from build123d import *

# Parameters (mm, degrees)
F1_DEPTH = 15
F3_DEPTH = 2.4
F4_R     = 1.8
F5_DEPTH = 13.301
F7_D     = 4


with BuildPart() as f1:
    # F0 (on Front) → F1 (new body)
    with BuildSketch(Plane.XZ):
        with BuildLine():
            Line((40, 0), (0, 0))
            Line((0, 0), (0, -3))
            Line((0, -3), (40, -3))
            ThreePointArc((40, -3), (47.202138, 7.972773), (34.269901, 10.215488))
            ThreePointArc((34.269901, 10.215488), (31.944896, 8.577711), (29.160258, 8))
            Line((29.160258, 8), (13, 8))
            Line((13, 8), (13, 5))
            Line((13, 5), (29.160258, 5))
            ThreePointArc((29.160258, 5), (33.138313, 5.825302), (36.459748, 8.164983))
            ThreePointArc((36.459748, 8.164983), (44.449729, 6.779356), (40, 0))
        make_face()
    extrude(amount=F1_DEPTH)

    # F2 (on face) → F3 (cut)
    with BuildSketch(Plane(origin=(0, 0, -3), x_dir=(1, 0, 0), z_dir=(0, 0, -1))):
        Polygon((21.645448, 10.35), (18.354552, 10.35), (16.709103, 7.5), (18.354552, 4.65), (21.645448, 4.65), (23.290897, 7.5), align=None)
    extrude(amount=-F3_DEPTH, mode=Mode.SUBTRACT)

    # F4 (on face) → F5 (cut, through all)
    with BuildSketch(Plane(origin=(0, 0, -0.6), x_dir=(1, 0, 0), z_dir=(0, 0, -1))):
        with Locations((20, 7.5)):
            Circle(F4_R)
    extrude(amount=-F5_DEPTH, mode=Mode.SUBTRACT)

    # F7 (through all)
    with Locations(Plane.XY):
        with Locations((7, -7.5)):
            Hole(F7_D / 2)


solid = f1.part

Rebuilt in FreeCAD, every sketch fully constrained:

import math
import FreeCAD as App
import Part
import Sketcher
Q = App.Units.Quantity


def add_polygon(sketch, points):
    """Adds a closed chain of lines whose ends are joined by coincident constraints."""
    first, n = sketch.GeometryCount, len(points)
    for a, b in zip(points, points[1:] + points[:1]):
        sketch.addGeometry(Part.LineSegment(App.Vector(*a, 0), App.Vector(*b, 0)), False)
    for i in range(n):
        sketch.addConstraint(Sketcher.Constraint("Coincident", first + i, 2, first + (i + 1) % n, 1))

doc = App.newDocument("Part")
body = doc.addObject("PartDesign::Body", "Body")

# Sketch on XZ plane
sketch1 = body.newObject("Sketcher::SketchObject", "Sketch")
sketch1.AttachmentSupport = (doc.getObject("XZ_Plane"), [""])
sketch1.MapMode = "FlatFace"
sketch1.addGeometry([
    Part.LineSegment(App.Vector(40, 0, 0), App.Vector(0, 0, 0)),  # 0
    Part.LineSegment(App.Vector(0, 0, 0), App.Vector(0, -3, 0)),  # 1
    Part.LineSegment(App.Vector(0, -3, 0), App.Vector(40, -3, 0)),  # 2
    Part.ArcOfCircle(Part.Circle(App.Vector(40, 4.85, 0), App.Vector(0, 0, 1), 7.85), math.radians(-90.000002), math.radians(136.882115)),  # 3
    Part.ArcOfCircle(Part.Circle(App.Vector(29.160259, 14.999999, 0), App.Vector(0, 0, 1), 6.999999), math.radians(-90.000009), math.radians(-43.117886)),  # 4
    Part.LineSegment(App.Vector(29.160258, 8, 0), App.Vector(13, 8, 0)),  # 5
    Part.LineSegment(App.Vector(13, 8, 0), App.Vector(13, 5, 0)),  # 6
    Part.LineSegment(App.Vector(13, 5, 0), App.Vector(29.160258, 5, 0)),  # 7
    Part.ArcOfCircle(Part.Circle(App.Vector(29.160258, 15.000001, 0), App.Vector(0, 0, 1), 10.000001), math.radians(-90.000003), math.radians(-43.11789)),  # 8
    Part.ArcOfCircle(Part.Circle(App.Vector(40, 4.85, 0), App.Vector(0, 0, 1), 4.85), math.radians(-90.000005), math.radians(136.882115)),  # 9
], False)
sketch1.addConstraint([
    Sketcher.Constraint("Coincident", 0, 2, 1, 1),
    Sketcher.Constraint("Coincident", 1, 2, 2, 1),
    Sketcher.Constraint("Tangent", 2, 2, 3, 1),
    Sketcher.Constraint("Tangent", 3, 2, 4, 2),
    Sketcher.Constraint("Tangent", 4, 1, 5, 1),
    Sketcher.Constraint("Coincident", 5, 2, 6, 1),
    Sketcher.Constraint("Coincident", 6, 2, 7, 1),
    Sketcher.Constraint("Tangent", 7, 2, 8, 1),
    Sketcher.Constraint("Tangent", 8, 2, 9, 2),
    Sketcher.Constraint("Tangent", 9, 1, 0, 1),
    Sketcher.Constraint("Horizontal", 0),
    Sketcher.Constraint("Vertical", 1),
    Sketcher.Constraint("Horizontal", 2),
    Sketcher.Constraint("Horizontal", 5),
    Sketcher.Constraint("Vertical", 6),
    Sketcher.Constraint("Horizontal", 7),
    Sketcher.Constraint("Coincident", 0, 2, -1, 1),
    Sketcher.Constraint("Coincident", 8, 3, 4, 3),
    Sketcher.Constraint("Coincident", 9, 3, 3, 3),
    Sketcher.Constraint("Radius", 4, 6.999999),
    Sketcher.Constraint("Radius", 8, 10.000001),
    Sketcher.Constraint("DistanceX", 0, 2, 0, 1, 40.0),
    Sketcher.Constraint("Radius", 3, 7.85),
    Sketcher.Constraint("DistanceY", -1, 1, 4, 3, 14.999999),
    Sketcher.Constraint("DistanceX", -1, 1, 5, 2, 13.0),
])
pad1 = body.newObject("PartDesign::Pad", "Pad")
pad1.Profile = sketch1
pad1.Length = 15

# Sketch on XY plane
sketch2 = body.newObject("Sketcher::SketchObject", "Sketch001")
sketch2.AttachmentSupport = (doc.getObject("XY_Plane"), [""])
sketch2.MapMode = "FlatFace"
sketch2.AttachmentOffset = App.Placement(App.Vector(0, 0, -3), App.Rotation())
add_polygon(sketch2, [(21.645448, -10.35), (18.354552, -10.35), (16.709103, -7.5), (18.354552, -4.65), (21.645448, -4.65), (23.290897, -7.5)])  # lines 0-5
sketch2.addConstraint([
    Sketcher.Constraint("Horizontal", 0),
    Sketcher.Constraint("Horizontal", 3),
    Sketcher.Constraint("Parallel", 1, 4),
    Sketcher.Constraint("Parallel", 2, 5),
    Sketcher.Constraint("Horizontal", 1, 2, 4, 2),
    Sketcher.Constraint("Vertical", 0, 2, 2, 2),
    Sketcher.Constraint("Vertical", 3, 2, 5, 2),
    Sketcher.Constraint("Angle", 1, Q("120.000011 deg")),
    Sketcher.Constraint("DistanceY", 1, 2, -1, 1, 7.5),
    Sketcher.Constraint("DistanceY", 0, 2, 2, 2, 5.7),
    Sketcher.Constraint("DistanceX", 0, 2, 0, 1, 3.290896),
    Sketcher.Constraint("DistanceX", -1, 1, 0, 2, 18.354552),
])
pocket1 = body.newObject("PartDesign::Pocket", "Pocket")
pocket1.Profile = sketch2
pocket1.Length = 2.4
pocket1.Reversed = True

# Sketch on XY plane
sketch3 = body.newObject("Sketcher::SketchObject", "Sketch002")
sketch3.AttachmentSupport = (doc.getObject("XY_Plane"), [""])
sketch3.MapMode = "FlatFace"
sketch3.AttachmentOffset = App.Placement(App.Vector(0, 0, -0.6), App.Rotation())
sketch3.addGeometry(Part.Circle(App.Vector(20, -7.5, 0), App.Vector(0, 0, 1), 1.8), False)
sketch3.addConstraint([
    Sketcher.Constraint("Diameter", 0, 3.6),
    Sketcher.Constraint("DistanceX", -1, 1, 0, 3, 20.0),
    Sketcher.Constraint("DistanceY", 0, 3, -1, 1, 7.5),
])
pocket2 = body.newObject("PartDesign::Pocket", "Pocket001")
pocket2.Profile = sketch3
pocket2.Type = "ThroughAll"
pocket2.Reversed = True

# Sketch on XY plane
sketch4 = body.newObject("Sketcher::SketchObject", "Sketch003")
sketch4.AttachmentSupport = (doc.getObject("XY_Plane"), [""])
sketch4.MapMode = "FlatFace"
sketch4.addGeometry(Part.Circle(App.Vector(7, -7.5, 0), App.Vector(0, 0, 1), 2), False)
sketch4.addConstraint([
    Sketcher.Constraint("Diameter", 0, 4.0),
    Sketcher.Constraint("DistanceX", -1, 1, 0, 3, 7.0),
    Sketcher.Constraint("DistanceY", 0, 3, -1, 1, 7.5),
])
doc.recompute()
hole = body.newObject("PartDesign::Hole", "Hole")
hole.Profile = sketch4
hole.ThreadType = "None"
hole.Diameter = 4
hole.DepthType = "ThroughAll"

doc.recompute()
